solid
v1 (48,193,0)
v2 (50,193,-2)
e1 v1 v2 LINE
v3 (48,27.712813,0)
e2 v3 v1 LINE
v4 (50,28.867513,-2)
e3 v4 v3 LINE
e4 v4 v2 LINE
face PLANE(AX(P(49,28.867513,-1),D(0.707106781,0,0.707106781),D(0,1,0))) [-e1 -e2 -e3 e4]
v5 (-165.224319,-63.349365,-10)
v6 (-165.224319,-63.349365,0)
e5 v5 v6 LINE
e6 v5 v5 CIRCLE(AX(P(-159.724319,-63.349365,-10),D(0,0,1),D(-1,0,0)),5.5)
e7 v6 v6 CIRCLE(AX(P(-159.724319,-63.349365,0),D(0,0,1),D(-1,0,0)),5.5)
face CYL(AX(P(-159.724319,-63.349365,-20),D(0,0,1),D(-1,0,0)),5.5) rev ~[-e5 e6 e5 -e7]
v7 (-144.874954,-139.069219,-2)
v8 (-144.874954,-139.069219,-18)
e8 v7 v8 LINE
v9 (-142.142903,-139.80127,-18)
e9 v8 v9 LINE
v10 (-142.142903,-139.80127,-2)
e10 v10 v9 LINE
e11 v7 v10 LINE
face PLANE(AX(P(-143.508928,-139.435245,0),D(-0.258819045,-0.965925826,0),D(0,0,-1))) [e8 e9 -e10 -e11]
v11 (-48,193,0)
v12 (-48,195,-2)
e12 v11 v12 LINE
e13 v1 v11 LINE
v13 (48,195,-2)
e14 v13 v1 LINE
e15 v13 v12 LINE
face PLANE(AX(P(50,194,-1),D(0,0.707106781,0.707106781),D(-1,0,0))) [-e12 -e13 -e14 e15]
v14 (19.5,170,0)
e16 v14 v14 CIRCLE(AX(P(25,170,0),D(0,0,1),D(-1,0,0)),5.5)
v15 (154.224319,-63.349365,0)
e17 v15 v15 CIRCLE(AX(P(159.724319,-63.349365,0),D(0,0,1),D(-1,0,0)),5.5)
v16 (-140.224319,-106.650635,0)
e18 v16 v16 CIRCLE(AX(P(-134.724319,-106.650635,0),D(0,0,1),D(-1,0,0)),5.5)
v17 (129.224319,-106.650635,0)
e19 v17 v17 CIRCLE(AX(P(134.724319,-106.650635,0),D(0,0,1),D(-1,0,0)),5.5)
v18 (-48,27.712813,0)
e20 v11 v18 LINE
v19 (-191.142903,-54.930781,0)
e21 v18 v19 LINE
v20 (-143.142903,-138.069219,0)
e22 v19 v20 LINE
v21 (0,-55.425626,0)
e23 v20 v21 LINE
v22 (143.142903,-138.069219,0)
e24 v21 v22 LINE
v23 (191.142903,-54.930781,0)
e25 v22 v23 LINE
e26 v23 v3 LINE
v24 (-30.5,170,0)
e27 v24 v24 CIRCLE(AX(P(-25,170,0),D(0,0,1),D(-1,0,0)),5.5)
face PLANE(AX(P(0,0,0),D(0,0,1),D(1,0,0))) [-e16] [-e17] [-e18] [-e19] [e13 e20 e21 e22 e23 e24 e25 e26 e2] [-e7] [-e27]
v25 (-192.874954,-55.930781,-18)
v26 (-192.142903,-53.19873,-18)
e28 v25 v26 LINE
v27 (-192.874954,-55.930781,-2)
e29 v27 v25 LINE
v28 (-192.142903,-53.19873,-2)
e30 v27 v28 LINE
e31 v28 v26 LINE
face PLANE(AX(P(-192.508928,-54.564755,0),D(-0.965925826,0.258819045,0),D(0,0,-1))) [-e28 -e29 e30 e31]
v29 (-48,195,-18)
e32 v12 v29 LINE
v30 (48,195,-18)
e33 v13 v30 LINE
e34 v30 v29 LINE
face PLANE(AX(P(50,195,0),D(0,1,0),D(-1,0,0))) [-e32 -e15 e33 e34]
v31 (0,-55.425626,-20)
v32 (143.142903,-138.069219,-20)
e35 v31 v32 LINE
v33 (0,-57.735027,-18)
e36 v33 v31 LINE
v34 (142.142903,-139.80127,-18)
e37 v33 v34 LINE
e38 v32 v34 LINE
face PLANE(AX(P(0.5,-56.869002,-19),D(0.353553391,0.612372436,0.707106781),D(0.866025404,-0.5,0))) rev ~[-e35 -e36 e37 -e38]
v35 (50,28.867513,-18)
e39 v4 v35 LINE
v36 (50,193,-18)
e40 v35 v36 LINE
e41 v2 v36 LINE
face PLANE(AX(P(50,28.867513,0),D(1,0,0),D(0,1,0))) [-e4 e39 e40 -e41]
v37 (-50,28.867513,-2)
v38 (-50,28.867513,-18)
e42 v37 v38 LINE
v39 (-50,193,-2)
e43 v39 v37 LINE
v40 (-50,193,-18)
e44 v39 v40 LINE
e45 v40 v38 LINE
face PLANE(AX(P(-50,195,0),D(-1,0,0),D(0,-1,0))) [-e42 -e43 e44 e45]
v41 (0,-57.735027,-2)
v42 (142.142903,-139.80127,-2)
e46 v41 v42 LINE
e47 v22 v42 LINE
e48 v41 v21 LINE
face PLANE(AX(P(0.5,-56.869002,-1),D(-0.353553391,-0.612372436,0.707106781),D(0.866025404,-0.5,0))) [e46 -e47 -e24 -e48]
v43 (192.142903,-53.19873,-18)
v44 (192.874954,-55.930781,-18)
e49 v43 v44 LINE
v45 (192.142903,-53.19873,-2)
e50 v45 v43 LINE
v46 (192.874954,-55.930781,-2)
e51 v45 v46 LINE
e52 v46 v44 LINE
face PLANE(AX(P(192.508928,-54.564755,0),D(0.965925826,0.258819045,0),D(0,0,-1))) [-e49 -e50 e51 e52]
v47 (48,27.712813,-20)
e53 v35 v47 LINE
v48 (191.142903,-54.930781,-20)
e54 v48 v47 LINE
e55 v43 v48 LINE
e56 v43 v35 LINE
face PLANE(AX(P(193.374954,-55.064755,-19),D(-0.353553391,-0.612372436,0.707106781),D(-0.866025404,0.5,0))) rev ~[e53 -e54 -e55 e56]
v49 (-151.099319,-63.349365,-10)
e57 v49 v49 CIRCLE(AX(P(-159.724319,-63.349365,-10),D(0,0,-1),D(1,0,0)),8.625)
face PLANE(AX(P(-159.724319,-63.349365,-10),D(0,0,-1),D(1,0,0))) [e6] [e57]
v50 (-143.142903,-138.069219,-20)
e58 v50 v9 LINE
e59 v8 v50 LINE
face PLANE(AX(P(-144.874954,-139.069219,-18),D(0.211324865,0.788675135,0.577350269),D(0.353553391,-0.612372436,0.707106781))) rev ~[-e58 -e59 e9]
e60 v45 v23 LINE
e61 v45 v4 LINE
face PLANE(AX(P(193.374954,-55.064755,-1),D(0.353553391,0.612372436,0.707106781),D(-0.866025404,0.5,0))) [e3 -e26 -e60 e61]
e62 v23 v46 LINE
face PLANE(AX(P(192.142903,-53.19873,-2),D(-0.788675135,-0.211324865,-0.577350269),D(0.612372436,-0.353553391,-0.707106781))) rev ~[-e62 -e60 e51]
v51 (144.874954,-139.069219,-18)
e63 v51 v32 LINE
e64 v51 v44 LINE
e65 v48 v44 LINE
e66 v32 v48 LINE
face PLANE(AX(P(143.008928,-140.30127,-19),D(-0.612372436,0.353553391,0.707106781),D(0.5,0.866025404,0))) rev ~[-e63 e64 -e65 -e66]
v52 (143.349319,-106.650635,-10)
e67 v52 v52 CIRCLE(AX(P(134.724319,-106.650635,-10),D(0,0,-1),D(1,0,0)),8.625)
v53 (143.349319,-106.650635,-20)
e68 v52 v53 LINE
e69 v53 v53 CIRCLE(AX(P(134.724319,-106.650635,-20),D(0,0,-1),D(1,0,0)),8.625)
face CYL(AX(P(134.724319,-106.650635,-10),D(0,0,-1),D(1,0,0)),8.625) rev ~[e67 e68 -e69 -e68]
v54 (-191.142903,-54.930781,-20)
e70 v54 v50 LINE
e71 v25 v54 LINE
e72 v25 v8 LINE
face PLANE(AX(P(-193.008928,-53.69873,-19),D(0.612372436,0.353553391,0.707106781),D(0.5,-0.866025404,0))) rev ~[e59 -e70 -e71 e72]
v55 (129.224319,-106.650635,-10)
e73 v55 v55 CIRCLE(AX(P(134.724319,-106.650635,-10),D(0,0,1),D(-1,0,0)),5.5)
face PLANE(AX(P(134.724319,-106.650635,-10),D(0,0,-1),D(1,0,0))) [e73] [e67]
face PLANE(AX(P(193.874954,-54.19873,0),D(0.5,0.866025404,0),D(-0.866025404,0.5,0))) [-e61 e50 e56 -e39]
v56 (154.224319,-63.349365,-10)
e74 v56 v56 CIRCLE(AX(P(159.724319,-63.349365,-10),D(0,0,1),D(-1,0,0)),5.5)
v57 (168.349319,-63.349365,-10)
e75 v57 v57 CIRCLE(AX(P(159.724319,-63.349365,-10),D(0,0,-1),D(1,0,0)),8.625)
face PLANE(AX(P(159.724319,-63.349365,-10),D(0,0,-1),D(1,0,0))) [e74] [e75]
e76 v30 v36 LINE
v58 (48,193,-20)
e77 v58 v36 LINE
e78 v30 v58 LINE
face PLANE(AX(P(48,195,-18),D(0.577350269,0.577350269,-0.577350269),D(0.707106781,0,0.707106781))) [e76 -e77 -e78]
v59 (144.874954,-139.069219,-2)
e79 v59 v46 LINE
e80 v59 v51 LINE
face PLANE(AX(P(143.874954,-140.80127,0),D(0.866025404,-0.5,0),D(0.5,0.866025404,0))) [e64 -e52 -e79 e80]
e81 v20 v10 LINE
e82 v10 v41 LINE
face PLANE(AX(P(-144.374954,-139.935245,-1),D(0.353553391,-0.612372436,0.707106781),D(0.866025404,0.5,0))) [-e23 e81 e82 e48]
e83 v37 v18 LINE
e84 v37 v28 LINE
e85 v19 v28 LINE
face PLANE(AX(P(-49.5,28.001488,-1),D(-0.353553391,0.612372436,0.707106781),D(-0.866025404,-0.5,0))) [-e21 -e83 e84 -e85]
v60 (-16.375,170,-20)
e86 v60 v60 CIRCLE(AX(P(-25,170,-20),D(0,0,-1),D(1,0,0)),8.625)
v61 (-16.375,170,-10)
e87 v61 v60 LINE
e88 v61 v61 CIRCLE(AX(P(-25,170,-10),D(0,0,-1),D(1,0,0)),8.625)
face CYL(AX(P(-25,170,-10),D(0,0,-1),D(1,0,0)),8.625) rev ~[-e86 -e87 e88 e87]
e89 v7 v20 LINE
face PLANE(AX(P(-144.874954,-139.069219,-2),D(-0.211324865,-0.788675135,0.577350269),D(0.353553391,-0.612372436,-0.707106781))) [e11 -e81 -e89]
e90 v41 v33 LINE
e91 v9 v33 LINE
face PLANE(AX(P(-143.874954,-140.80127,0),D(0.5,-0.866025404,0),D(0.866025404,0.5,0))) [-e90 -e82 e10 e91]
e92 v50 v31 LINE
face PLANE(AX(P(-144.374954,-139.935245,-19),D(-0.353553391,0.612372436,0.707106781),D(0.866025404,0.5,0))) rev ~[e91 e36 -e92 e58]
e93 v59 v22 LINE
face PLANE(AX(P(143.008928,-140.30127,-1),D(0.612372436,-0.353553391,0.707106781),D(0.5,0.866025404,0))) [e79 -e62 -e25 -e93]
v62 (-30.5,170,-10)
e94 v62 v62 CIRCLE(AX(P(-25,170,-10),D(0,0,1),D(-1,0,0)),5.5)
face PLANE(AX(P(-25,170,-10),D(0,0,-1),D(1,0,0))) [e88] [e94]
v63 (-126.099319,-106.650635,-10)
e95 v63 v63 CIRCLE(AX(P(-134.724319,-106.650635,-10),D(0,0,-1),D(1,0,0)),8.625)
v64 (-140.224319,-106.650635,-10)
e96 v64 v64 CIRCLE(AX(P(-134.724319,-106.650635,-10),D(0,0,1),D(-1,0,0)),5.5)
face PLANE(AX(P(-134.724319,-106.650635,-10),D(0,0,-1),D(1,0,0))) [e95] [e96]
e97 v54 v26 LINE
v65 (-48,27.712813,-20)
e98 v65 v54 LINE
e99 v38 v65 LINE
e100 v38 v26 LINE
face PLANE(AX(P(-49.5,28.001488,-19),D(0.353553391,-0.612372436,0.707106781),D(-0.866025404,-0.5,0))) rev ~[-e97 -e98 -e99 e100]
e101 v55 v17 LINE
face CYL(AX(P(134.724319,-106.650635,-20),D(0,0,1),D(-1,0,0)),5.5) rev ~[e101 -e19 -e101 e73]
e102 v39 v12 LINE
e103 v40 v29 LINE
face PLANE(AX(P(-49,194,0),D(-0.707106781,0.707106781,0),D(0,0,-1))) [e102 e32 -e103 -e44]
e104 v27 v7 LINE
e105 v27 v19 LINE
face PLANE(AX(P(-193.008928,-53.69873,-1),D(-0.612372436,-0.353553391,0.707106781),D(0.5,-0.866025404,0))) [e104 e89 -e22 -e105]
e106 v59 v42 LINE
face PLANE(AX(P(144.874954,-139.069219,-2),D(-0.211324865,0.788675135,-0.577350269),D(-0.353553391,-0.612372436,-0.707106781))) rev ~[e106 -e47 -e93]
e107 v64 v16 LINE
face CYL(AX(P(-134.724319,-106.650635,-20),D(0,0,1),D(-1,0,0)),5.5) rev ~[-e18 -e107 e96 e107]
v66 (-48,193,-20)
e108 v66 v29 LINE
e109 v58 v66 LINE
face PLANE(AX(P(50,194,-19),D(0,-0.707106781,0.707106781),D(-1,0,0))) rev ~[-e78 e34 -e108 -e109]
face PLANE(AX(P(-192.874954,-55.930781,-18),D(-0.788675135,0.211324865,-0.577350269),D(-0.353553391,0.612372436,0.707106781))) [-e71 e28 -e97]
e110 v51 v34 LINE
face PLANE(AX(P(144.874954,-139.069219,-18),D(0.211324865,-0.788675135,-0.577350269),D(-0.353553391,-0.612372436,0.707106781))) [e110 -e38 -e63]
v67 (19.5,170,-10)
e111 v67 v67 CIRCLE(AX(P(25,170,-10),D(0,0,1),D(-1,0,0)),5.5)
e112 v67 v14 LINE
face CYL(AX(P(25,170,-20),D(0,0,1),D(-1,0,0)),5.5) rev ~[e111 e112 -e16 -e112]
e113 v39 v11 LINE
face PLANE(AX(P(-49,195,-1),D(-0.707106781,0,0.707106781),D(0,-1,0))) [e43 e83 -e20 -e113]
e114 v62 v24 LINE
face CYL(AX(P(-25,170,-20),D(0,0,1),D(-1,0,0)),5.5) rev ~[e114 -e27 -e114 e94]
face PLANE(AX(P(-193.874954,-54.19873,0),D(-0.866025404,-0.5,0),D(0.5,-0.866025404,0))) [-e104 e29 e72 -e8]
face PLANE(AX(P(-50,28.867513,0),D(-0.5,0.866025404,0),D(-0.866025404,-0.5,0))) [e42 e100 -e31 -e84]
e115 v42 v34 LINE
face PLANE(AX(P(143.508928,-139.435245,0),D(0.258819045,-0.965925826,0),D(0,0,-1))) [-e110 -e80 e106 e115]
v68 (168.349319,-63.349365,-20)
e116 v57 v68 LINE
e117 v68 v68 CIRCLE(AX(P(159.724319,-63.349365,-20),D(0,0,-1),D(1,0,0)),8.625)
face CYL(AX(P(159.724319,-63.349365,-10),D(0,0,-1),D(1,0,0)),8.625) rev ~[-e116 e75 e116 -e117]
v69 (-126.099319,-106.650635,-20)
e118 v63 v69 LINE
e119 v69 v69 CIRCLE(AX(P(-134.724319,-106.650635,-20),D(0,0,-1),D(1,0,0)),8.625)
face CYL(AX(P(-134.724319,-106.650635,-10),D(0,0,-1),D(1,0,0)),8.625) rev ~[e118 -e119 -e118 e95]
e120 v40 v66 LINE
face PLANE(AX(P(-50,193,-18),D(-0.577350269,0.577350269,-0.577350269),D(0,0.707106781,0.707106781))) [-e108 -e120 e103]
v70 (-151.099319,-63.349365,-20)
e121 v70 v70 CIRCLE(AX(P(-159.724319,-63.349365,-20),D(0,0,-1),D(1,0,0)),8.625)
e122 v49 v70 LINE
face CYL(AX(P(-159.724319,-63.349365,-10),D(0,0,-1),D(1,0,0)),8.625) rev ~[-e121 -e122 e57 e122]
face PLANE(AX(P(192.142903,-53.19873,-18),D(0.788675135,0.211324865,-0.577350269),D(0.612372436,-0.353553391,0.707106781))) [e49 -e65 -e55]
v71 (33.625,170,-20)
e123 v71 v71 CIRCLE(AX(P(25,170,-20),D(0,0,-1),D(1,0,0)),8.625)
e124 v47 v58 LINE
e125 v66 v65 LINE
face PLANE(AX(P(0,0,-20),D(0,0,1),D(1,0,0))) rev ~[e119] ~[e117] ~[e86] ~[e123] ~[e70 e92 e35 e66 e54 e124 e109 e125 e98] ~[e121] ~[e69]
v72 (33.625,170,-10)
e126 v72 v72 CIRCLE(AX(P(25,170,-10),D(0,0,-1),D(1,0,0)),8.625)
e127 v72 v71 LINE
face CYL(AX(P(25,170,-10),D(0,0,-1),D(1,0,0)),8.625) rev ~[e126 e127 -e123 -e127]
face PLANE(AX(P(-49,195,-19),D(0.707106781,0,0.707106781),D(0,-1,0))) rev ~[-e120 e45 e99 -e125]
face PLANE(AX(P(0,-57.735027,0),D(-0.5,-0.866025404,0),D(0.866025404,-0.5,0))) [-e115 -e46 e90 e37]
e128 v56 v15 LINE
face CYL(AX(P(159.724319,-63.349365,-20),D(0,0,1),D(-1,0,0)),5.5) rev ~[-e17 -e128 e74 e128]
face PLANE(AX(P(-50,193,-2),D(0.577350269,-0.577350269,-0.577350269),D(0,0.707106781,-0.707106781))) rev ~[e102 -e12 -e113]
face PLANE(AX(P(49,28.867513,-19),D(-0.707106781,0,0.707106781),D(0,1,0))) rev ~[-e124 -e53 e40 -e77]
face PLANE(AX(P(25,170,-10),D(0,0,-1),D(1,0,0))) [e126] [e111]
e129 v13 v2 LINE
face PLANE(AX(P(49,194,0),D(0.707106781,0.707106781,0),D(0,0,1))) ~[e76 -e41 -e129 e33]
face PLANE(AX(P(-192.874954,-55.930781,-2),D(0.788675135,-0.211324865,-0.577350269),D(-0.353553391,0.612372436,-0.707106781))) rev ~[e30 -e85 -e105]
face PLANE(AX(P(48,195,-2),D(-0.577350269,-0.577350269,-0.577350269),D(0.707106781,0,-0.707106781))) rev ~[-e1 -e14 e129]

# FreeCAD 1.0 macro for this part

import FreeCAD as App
import Part
import Sketcher
Q = App.Units.Quantity


def edges_at(feature, points):
    """Names of the edges that pass closest to the given points."""
    edges = feature.Shape.Edges
    near = lambda p: min(range(len(edges)), key=lambda i: edges[i].distToShape(Part.Vertex(*p))[0])
    return sorted({f"Edge{near(p) + 1}" for p in points})

doc = App.newDocument("Part")
body = doc.addObject("PartDesign::Body", "Body")

# Sketch on XY plane
sketch1 = doc.addObject("Sketcher::SketchObject", "Sketch")
body.addObject(sketch1)
sketch1.AttachmentSupport = (doc.XY_Plane, [""])
sketch1.MapMode = "FlatFace"
sketch1.addGeometry([
    Part.LineSegment(App.Vector(50, 195, 0), App.Vector(-50, 195, 0)),  # 0
    Part.LineSegment(App.Vector(-50, 195, 0), App.Vector(-50, 29, 0)),  # 1
    Part.LineSegment(App.Vector(-50, 29, 0), App.Vector(-194, -54, 0)),  # 2
    Part.LineSegment(App.Vector(-194, -54, 0), App.Vector(-144, -141, 0)),  # 3
    Part.LineSegment(App.Vector(-144, -141, 0), App.Vector(0, -58, 0)),  # 4
    Part.LineSegment(App.Vector(0, -58, 0), App.Vector(144, -141, 0)),  # 5
    Part.LineSegment(App.Vector(144, -141, 0), App.Vector(194, -54, 0)),  # 6
    Part.LineSegment(App.Vector(194, -54, 0), App.Vector(50, 29, 0)),  # 7
    Part.LineSegment(App.Vector(50, 29, 0), App.Vector(50, 195, 0)),  # 8
], False)
sketch1.addConstraint([
    Sketcher.Constraint("Coincident", 0, 2, 1, 1),
    Sketcher.Constraint("Coincident", 1, 2, 2, 1),
    Sketcher.Constraint("Coincident", 2, 2, 3, 1),
    Sketcher.Constraint("Coincident", 3, 2, 4, 1),
    Sketcher.Constraint("Coincident", 4, 2, 5, 1),
    Sketcher.Constraint("Coincident", 5, 2, 6, 1),
    Sketcher.Constraint("Coincident", 6, 2, 7, 1),
    Sketcher.Constraint("Coincident", 7, 2, 8, 1),
    Sketcher.Constraint("Coincident", 8, 2, 0, 1),
    Sketcher.Constraint("Horizontal", 0),
    Sketcher.Constraint("Vertical", 1),
    Sketcher.Constraint("Vertical", 8),
    Sketcher.Constraint("Symmetric", 3, 2, 5, 2, -2),
    Sketcher.Constraint("Symmetric", 2, 2, 6, 2, -2),
    Sketcher.Constraint("Symmetric", 1, 2, 7, 2, -2),
    Sketcher.Constraint("PointOnObject", 4, 2, -2),
    Sketcher.Constraint("Perpendicular", 2, 3),
    Sketcher.Constraint("Perpendicular", 3, 4),
    Sketcher.Constraint("Equal", 2, 4),
    Sketcher.Constraint("DistanceX", 0, 2, 0, 1, Q("100 mm")),
    Sketcher.Constraint("Angle", 2, Q("-150 deg")),
    Sketcher.Constraint("DistanceY", -1, 1, 0, 2, Q("195 mm")),
    Sketcher.Constraint("DistanceY", 1, 2, 1, 1, Q("166.132487 mm")),
    Sketcher.Constraint("DistanceY", 2, 2, -1, 1, Q("54.19873 mm")),
])
pad1 = doc.addObject("PartDesign::Pad", "Pad")
body.addObject(pad1)
pad1.Profile = sketch1
pad1.Length = 20
pad1.Reversed = True
doc.recompute()

chamfer = doc.addObject("PartDesign::Chamfer", "Chamfer")
body.addObject(chamfer)
chamfer.Base = (pad1, edges_at(pad1, [
    (-71.937, -99.268, 0),
    (71.937, -99.268, 0),
    (168.875, -97.5, 0),
    (121.937, -12.666, 0),
    (50, 111.934, 0),
    (0, 195, 0),
    (-50, 111.934, 0),
    (-121.937, -12.666, 0),
    (-168.875, -97.5, 0),
    (-71.937, -99.268, -20),
    (71.937, -99.268, -20),
    (168.875, -97.5, -20),
    (121.937, -12.666, -20),
    (50, 111.934, -20),
    (0, 195, -20),
    (-50, 111.934, -20),
    (-121.937, -12.666, -20),
    (-168.875, -97.5, -20),
    (-143.875, -140.801, -10),
    (-193.875, -54.199, -10),
    (-50, 195, -10),
    (50, 195, -10),
    (193.875, -54.199, -10),
    (143.875, -140.801, -10),
]))
chamfer.Size = 2

# Sketch on XY plane
sketch2 = doc.addObject("Sketcher::SketchObject", "Sketch001")
body.addObject(sketch2)
sketch2.AttachmentSupport = (doc.XY_Plane, [""])
sketch2.MapMode = "FlatFace"
sketch2.AttachmentOffset = App.Placement(App.Vector(0, 0, -20), App.Rotation())
sketch2.addGeometry([
    Part.Circle(App.Vector(160, -63, 0), App.Vector(0, 0, 1), 6),  # 0
    Part.Circle(App.Vector(135, -107, 0), App.Vector(0, 0, 1), 6),  # 1
    Part.Circle(App.Vector(-25, 170, 0), App.Vector(0, 0, 1), 6),  # 2
    Part.Circle(App.Vector(25, 170, 0), App.Vector(0, 0, 1), 6),  # 3
    Part.Circle(App.Vector(-135, -107, 0), App.Vector(0, 0, 1), 6),  # 4
    Part.Circle(App.Vector(-160, -63, 0), App.Vector(0, 0, 1), 6),  # 5
], False)
sketch2.addConstraint([
    Sketcher.Constraint("Equal", 0, 1),
    Sketcher.Constraint("Equal", 1, 2),
    Sketcher.Constraint("Equal", 2, 3),
    Sketcher.Constraint("Equal", 3, 4),
    Sketcher.Constraint("Equal", 4, 5),
    Sketcher.Constraint("Symmetric", 2, 3, 3, 3, -2),
    Sketcher.Constraint("Symmetric", 1, 3, 4, 3, -2),
    Sketcher.Constraint("Symmetric", 0, 3, 5, 3, -2),
    Sketcher.Constraint("Diameter", 0, Q("11 mm")),
    Sketcher.Constraint("DistanceX", 2, 3, -1, 1, Q("25 mm")),
    Sketcher.Constraint("DistanceY", -1, 1, 2, 3, Q("170 mm")),
    Sketcher.Constraint("DistanceX", 1, 3, 0, 3, Q("25 mm")),
    Sketcher.Constraint("DistanceX", -1, 1, 0, 3, Q("159.724319 mm")),
    Sketcher.Constraint("DistanceY", 1, 3, 0, 3, Q("43.30127 mm")),
    Sketcher.Constraint("DistanceY", 0, 3, -1, 1, Q("63.349365 mm")),
])
doc.recompute()
hole = doc.addObject("PartDesign::Hole", "Hole")
body.addObject(hole)
hole.Profile = sketch2
hole.ThreadType = "None"
hole.Diameter = 11
hole.DepthType = "ThroughAll"
hole.HoleCutType = "Counterbore"
hole.HoleCutDiameter = 17.25
hole.HoleCutDepth = 10
hole.Reversed = True
body2 = doc.addObject("PartDesign::Body", "Body001")
doc.recompute()

body2.BaseFeature = body
doc.recompute()
body.Visibility = False

doc.recompute()
